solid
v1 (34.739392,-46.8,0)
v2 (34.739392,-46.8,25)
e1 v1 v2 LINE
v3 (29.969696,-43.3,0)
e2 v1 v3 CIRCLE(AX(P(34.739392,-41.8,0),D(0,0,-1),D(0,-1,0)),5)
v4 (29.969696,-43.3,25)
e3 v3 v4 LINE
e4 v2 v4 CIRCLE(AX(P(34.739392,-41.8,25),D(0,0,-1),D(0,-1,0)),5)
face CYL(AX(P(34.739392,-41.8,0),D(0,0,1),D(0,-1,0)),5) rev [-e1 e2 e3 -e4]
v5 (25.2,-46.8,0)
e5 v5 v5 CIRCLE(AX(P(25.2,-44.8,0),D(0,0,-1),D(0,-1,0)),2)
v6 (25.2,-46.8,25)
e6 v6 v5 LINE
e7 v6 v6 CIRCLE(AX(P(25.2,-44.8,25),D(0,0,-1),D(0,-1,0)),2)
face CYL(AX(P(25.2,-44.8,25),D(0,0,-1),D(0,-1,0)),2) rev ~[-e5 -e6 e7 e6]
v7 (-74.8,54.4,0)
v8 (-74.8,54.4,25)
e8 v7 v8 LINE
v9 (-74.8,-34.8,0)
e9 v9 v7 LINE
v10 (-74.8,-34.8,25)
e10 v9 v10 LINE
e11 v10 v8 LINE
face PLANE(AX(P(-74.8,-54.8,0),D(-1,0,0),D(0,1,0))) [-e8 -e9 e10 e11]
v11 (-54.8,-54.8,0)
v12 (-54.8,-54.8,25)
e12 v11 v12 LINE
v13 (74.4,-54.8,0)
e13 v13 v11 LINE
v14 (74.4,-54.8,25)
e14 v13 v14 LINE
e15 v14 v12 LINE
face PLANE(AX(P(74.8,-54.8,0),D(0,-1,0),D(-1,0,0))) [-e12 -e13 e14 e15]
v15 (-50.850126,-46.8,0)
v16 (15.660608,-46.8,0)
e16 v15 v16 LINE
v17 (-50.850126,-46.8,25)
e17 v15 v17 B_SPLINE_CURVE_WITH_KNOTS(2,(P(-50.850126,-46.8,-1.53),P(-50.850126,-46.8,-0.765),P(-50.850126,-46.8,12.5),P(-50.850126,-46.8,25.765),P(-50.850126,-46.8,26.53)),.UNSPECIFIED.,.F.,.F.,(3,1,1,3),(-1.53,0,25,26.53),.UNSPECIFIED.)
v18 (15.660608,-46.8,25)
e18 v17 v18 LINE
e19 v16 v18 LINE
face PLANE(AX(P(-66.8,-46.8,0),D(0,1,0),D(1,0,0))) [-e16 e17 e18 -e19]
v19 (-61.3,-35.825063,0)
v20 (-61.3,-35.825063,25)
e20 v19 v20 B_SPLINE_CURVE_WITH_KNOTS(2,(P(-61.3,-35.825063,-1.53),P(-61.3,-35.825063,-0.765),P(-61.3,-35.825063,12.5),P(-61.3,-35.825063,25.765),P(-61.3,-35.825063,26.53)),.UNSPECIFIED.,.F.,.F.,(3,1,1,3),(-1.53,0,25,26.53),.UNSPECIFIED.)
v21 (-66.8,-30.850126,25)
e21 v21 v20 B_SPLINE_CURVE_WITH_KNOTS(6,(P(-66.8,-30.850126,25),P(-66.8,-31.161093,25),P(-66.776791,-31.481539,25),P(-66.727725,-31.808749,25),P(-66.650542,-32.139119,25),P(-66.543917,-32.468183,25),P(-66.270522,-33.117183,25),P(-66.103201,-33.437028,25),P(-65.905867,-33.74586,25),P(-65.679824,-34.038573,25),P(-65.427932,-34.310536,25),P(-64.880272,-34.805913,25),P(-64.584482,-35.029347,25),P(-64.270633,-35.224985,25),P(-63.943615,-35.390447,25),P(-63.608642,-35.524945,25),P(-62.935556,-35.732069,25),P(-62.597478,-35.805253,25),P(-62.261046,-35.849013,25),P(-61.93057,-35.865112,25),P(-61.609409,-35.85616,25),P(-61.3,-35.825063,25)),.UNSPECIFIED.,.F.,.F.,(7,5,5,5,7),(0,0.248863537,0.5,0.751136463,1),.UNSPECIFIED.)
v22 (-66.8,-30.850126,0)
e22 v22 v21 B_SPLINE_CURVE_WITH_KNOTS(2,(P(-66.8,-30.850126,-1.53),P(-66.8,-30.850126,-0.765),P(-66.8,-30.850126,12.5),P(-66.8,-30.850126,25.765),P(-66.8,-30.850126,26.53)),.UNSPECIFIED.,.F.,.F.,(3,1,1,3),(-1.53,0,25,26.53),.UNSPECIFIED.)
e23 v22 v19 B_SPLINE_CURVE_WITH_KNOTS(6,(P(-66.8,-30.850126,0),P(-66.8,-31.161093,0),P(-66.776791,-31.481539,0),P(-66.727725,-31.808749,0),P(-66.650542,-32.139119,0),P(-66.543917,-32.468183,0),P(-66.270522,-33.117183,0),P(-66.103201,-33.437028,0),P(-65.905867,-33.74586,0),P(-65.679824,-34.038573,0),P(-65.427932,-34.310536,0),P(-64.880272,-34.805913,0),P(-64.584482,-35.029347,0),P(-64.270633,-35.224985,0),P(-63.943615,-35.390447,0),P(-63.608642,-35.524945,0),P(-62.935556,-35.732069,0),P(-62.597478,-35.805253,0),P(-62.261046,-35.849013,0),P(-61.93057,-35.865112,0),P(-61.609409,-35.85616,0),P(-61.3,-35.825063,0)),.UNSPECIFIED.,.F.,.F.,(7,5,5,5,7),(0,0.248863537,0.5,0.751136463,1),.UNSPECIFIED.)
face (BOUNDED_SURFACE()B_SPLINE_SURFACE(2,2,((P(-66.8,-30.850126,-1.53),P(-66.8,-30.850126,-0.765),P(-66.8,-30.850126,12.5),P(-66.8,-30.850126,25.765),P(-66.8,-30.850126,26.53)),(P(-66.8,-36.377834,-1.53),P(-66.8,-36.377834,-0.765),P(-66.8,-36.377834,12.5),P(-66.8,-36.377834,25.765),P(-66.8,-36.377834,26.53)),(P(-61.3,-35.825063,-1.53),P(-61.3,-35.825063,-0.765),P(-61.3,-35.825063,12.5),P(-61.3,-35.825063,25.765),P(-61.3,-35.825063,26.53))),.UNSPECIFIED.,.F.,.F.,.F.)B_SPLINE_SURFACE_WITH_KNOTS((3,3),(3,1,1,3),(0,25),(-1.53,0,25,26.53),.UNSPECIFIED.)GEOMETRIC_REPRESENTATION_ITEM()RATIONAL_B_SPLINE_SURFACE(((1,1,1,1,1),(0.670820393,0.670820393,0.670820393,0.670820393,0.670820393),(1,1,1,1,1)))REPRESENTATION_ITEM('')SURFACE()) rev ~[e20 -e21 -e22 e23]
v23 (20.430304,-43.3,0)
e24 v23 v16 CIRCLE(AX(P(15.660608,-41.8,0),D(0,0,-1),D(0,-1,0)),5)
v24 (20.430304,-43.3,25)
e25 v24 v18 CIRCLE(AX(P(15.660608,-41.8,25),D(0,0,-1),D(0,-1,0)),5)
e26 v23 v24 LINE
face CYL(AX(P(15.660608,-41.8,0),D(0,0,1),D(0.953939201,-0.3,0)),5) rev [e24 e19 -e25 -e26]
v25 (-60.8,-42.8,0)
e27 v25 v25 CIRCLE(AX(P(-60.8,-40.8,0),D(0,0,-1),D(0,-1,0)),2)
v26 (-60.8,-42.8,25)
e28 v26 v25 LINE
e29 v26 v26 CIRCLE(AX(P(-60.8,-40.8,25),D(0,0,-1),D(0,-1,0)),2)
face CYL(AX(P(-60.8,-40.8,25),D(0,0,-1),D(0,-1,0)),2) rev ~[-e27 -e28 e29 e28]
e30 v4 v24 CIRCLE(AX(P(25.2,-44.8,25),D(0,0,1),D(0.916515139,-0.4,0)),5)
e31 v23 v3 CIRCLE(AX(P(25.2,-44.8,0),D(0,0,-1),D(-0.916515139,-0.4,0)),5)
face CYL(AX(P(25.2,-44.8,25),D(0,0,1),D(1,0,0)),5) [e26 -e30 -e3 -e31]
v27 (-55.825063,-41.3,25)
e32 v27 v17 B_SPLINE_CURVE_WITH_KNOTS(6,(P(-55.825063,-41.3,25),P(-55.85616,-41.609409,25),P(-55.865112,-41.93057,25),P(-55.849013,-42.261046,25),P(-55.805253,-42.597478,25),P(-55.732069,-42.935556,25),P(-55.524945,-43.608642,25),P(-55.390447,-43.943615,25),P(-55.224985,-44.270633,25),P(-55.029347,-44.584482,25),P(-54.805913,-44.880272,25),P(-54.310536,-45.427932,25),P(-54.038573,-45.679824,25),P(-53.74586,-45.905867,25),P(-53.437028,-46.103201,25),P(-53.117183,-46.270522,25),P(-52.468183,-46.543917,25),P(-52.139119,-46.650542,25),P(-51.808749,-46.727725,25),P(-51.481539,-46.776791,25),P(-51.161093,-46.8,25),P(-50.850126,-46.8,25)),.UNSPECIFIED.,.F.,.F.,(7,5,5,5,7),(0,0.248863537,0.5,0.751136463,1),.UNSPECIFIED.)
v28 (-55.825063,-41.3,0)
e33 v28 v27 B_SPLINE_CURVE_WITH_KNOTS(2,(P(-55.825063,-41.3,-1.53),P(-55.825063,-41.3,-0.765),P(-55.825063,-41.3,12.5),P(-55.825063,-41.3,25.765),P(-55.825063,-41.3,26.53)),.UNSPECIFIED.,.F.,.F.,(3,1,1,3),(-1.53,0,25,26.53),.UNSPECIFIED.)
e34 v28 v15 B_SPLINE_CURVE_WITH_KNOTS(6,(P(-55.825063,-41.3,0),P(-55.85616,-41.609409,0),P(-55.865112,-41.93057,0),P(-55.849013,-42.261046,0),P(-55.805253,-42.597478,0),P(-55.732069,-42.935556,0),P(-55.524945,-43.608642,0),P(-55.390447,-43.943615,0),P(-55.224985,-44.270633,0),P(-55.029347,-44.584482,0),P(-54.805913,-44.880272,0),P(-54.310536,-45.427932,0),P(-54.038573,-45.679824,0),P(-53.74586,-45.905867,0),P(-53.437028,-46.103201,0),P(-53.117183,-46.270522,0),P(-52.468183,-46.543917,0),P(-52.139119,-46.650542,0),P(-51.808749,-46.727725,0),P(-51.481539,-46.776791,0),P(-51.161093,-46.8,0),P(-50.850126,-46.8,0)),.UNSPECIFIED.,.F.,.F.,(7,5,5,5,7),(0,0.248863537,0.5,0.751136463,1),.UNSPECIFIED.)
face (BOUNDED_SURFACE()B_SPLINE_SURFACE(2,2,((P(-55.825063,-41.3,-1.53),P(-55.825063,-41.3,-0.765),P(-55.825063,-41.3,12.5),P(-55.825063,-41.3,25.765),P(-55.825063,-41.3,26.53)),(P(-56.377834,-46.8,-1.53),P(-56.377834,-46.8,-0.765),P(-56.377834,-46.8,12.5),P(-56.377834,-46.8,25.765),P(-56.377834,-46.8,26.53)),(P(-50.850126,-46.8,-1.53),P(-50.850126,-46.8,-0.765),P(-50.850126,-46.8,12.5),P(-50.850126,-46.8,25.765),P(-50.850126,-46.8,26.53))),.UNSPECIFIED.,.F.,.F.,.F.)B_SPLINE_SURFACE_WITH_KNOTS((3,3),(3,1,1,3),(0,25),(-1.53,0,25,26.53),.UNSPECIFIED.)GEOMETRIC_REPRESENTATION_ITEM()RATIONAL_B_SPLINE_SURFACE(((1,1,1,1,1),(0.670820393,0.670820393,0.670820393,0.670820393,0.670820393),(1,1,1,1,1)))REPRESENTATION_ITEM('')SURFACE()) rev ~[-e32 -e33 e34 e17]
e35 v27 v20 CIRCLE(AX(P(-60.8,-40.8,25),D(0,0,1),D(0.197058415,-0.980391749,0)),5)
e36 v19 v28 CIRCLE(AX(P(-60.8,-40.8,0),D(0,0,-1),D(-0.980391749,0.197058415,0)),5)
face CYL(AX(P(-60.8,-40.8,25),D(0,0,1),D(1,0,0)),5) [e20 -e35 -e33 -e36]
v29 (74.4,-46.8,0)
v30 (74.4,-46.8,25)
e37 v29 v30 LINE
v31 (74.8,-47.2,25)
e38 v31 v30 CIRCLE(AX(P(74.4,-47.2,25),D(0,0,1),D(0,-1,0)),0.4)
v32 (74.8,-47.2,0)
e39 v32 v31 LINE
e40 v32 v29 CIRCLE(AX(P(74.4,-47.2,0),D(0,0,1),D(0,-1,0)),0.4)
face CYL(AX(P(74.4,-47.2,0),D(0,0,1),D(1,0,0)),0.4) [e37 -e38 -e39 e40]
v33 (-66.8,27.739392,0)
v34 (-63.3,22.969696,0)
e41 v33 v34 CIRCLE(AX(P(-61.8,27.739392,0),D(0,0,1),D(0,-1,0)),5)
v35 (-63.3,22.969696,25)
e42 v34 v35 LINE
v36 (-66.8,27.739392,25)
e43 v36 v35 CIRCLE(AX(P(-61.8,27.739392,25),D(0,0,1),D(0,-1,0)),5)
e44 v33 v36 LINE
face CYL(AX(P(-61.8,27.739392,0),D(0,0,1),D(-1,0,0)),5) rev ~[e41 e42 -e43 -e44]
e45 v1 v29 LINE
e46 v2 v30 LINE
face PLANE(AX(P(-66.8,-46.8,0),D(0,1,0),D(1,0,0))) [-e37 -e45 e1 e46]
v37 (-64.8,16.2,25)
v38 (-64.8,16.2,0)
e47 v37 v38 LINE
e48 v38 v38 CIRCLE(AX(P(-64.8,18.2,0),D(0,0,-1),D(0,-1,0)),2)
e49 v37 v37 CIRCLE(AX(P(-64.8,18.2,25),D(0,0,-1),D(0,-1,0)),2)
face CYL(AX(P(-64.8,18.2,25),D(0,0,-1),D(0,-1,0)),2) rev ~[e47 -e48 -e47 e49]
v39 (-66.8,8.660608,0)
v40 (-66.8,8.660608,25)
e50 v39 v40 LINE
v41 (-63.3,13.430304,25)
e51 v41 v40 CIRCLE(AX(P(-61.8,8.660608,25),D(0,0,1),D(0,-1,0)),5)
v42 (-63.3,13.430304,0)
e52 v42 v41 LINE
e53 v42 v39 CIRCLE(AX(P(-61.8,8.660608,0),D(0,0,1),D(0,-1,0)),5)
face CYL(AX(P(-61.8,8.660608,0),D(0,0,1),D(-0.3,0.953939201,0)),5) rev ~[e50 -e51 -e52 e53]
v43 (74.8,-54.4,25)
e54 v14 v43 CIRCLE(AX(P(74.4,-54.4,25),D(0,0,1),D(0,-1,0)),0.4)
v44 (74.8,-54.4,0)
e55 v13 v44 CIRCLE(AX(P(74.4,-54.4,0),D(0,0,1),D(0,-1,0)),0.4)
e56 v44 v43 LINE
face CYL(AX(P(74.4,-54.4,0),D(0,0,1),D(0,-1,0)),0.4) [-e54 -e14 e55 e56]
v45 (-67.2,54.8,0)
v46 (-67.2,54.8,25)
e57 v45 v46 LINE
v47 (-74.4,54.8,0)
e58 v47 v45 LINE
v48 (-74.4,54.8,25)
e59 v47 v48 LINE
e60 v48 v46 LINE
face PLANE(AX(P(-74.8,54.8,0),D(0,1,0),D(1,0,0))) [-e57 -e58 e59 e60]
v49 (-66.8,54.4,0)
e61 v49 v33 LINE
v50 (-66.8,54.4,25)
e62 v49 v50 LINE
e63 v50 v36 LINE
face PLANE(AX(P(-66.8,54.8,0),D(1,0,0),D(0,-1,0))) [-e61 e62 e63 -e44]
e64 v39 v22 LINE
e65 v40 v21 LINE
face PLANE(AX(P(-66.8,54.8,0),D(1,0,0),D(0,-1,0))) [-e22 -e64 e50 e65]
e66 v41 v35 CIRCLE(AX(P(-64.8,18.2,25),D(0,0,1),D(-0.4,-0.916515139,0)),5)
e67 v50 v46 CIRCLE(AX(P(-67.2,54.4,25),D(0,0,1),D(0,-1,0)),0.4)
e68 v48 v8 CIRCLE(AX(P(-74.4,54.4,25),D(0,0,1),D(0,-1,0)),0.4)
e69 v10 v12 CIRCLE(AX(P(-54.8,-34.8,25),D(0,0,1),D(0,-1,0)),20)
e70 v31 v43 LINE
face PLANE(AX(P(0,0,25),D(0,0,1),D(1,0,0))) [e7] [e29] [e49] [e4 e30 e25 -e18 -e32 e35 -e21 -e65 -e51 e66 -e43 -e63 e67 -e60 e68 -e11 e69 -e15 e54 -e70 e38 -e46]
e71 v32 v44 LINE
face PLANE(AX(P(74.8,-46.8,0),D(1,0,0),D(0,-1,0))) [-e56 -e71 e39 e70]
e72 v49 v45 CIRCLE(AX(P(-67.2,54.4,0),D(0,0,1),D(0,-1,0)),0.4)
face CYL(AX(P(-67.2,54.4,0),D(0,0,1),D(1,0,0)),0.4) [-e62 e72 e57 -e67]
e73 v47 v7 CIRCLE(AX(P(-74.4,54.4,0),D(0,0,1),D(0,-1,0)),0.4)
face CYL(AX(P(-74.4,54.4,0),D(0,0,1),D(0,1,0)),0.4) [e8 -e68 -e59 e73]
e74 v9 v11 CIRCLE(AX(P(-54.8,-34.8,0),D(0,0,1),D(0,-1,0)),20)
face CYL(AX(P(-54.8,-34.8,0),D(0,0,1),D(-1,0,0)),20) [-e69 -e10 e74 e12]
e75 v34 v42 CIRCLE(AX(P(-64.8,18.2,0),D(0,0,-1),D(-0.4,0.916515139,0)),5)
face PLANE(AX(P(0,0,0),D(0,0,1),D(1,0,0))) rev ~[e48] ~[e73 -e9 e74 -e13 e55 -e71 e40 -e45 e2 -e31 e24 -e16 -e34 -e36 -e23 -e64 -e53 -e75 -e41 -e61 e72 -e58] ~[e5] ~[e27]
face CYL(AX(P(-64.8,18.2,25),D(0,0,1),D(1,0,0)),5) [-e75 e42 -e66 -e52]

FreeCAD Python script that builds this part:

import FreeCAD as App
import Part
import Sketcher
Q = App.Units.Quantity


def edges_at(feature, points):
    """Names of the edges that pass closest to the given points."""
    edges = feature.Shape.Edges
    near = lambda p: min(range(len(edges)), key=lambda i: edges[i].distToShape(Part.Vertex(*p))[0])
    return sorted({f"Edge{near(p) + 1}" for p in points})


def add_polygon(sketch, points):
    """Adds a closed chain of lines whose ends are joined by coincident constraints."""
    first, n = sketch.GeometryCount, len(points)
    for a, b in zip(points, points[1:] + points[:1]):
        sketch.addGeometry(Part.LineSegment(App.Vector(*a, 0), App.Vector(*b, 0)), False)
    for i in range(n):
        sketch.addConstraint(Sketcher.Constraint("Coincident", first + i, 2, first + (i + 1) % n, 1))

doc = App.newDocument("Part")
body = doc.addObject("PartDesign::Body", "Body")

sketch1 = doc.addObject("Sketcher::SketchObject", "Sketch")
body.addObject(sketch1)
sketch1.AttachmentSupport = (doc.XY_Plane, [""])
sketch1.MapMode = "FlatFace"
add_polygon(sketch1, [(-67, 55), (-75, 55), (-75, -55), (75, -55), (75, -47), (-67, -47)])
sketch1.addConstraint(Sketcher.Constraint("Horizontal", 0))
sketch1.addConstraint(Sketcher.Constraint("Vertical", 1))
sketch1.addConstraint(Sketcher.Constraint("Horizontal", 2))
sketch1.addConstraint(Sketcher.Constraint("Vertical", 3))
sketch1.addConstraint(Sketcher.Constraint("Horizontal", 4))
sketch1.addConstraint(Sketcher.Constraint("Vertical", 5))
sketch1.addConstraint(Sketcher.Constraint("Symmetric", 0, 2, 2, 2, -1, 1))
sketch1.addConstraint(Sketcher.Constraint("Equal", 0, 3))
sketch1.addConstraint(Sketcher.Constraint("DistanceX", 0, 2, 0, 1, Q("8 mm")))
sketch1.addConstraint(Sketcher.Constraint("DistanceX", 2, 1, 2, 2, Q("149.6 mm")))
sketch1.addConstraint(Sketcher.Constraint("DistanceY", 1, 2, 1, 1, Q("109.6 mm")))
pad1 = doc.addObject("PartDesign::Pad", "Pad")
body.addObject(pad1)
pad1.Profile = sketch1
pad1.Length = 25
doc.recompute()

fillet = doc.addObject("PartDesign::Fillet", "Fillet")
body.addObject(fillet)
fillet.Base = (pad1, edges_at(pad1, [(-66.8, -46.8, 12.5)]))
fillet.Radius = 12
doc.recompute()

fillet2 = doc.addObject("PartDesign::Fillet", "Fillet001")
body.addObject(fillet2)
fillet2.Base = (fillet, edges_at(fillet, [(-74.8, -54.8, 12.5)]))
fillet2.Radius = 20

sketch2 = doc.addObject("Sketcher::SketchObject", "Sketch001")
body.addObject(sketch2)
sketch2.AttachmentSupport = (doc.XY_Plane, [""])
sketch2.MapMode = "FlatFace"
sketch2.AttachmentOffset = App.Placement(App.Vector(0, 0, 25), App.Rotation())
sketch2.addGeometry(Part.Circle(App.Vector(25, -45, 0), App.Vector(0, 0, 1), 5), False)
sketch2.addGeometry(Part.Circle(App.Vector(-61, -41, 0), App.Vector(0, 0, 1), 5), False)
sketch2.addGeometry(Part.Circle(App.Vector(-65, 18, 0), App.Vector(0, 0, 1), 5), False)
sketch2.addConstraint(Sketcher.Constraint("Equal", 0, 1))
sketch2.addConstraint(Sketcher.Constraint("Equal", 1, 2))
sketch2.addConstraint(Sketcher.Constraint("Diameter", 0, Q("10 mm")))
sketch2.addConstraint(Sketcher.Constraint("DistanceX", 1, 3, 0, 3, Q("86 mm")))
sketch2.addConstraint(Sketcher.Constraint("DistanceY", 0, 3, 1, 3, Q("4 mm")))
sketch2.addConstraint(Sketcher.Constraint("DistanceX", 2, 3, 1, 3, Q("4 mm")))
sketch2.addConstraint(Sketcher.Constraint("DistanceY", 1, 3, 2, 3, Q("59 mm")))
sketch2.addConstraint(Sketcher.Constraint("DistanceX", -1, 1, 0, 3, Q("25.2 mm")))
sketch2.addConstraint(Sketcher.Constraint("DistanceY", 0, 3, -1, 1, Q("44.8 mm")))
pad2 = doc.addObject("PartDesign::Pad", "Pad001")
body.addObject(pad2)
pad2.Profile = sketch2
pad2.Length = 25
pad2.Reversed = True

sketch3 = doc.addObject("Sketcher::SketchObject", "Sketch002")
body.addObject(sketch3)
sketch3.AttachmentSupport = (doc.XY_Plane, [""])
sketch3.MapMode = "FlatFace"
sketch3.AttachmentOffset = App.Placement(App.Vector(0, 0, 25), App.Rotation())
sketch3.addGeometry(Part.Circle(App.Vector(-64.8, 18.2, 0), App.Vector(0, 0, 1), 2), False)
sketch3.addGeometry(Part.Circle(App.Vector(-60.8, -40.8, 0), App.Vector(0, 0, 1), 2), False)
sketch3.addGeometry(Part.Circle(App.Vector(25.2, -44.8, 0), App.Vector(0, 0, 1), 2), False)
sketch3.addConstraint(Sketcher.Constraint("Equal", 0, 1))
sketch3.addConstraint(Sketcher.Constraint("Equal", 1, 2))
sketch3.addConstraint(Sketcher.Constraint("Diameter", 0, Q("4 mm")))
sketch3.addConstraint(Sketcher.Constraint("DistanceX", 0, 3, 1, 3, Q("4 mm")))
sketch3.addConstraint(Sketcher.Constraint("DistanceY", 1, 3, 0, 3, Q("59 mm")))
sketch3.addConstraint(Sketcher.Constraint("DistanceX", 1, 3, 2, 3, Q("86 mm")))
sketch3.addConstraint(Sketcher.Constraint("DistanceY", 2, 3, 1, 3, Q("4 mm")))
sketch3.addConstraint(Sketcher.Constraint("DistanceX", 0, 3, -1, 1, Q("64.8 mm")))
sketch3.addConstraint(Sketcher.Constraint("DistanceY", -1, 1, 0, 3, Q("18.2 mm")))
doc.recompute()
hole = doc.addObject("PartDesign::Hole", "Hole")
body.addObject(hole)
hole.Profile = sketch3
hole.ThreadType = "None"
hole.Diameter = 4
hole.DepthType = "ThroughAll"
doc.recompute()

fillet3 = doc.addObject("PartDesign::Fillet", "Fillet002")
body.addObject(fillet3)
fillet3.Base = (hole, edges_at(hole, [
    (29.783, -46.8, 12.5),
    (20.617, -46.8, 12.5),
    (-65.702, -39.815, 12.5),
    (-59.815, -45.702, 12.5),
    (-66.8, 22.783, 12.5),
    (-66.8, 13.617, 12.5),
]))
fillet3.Radius = 5
doc.recompute()

fillet4 = doc.addObject("PartDesign::Fillet", "Fillet003")
body.addObject(fillet4)
fillet4.Base = (fillet3, edges_at(fillet3, [
    (-74.8, 54.8, 12.5),
    (-66.8, 54.8, 12.5),
    (74.8, -54.8, 12.5),
    (74.8, -46.8, 12.5),
]))
fillet4.Radius = 0.4

doc.recompute()
